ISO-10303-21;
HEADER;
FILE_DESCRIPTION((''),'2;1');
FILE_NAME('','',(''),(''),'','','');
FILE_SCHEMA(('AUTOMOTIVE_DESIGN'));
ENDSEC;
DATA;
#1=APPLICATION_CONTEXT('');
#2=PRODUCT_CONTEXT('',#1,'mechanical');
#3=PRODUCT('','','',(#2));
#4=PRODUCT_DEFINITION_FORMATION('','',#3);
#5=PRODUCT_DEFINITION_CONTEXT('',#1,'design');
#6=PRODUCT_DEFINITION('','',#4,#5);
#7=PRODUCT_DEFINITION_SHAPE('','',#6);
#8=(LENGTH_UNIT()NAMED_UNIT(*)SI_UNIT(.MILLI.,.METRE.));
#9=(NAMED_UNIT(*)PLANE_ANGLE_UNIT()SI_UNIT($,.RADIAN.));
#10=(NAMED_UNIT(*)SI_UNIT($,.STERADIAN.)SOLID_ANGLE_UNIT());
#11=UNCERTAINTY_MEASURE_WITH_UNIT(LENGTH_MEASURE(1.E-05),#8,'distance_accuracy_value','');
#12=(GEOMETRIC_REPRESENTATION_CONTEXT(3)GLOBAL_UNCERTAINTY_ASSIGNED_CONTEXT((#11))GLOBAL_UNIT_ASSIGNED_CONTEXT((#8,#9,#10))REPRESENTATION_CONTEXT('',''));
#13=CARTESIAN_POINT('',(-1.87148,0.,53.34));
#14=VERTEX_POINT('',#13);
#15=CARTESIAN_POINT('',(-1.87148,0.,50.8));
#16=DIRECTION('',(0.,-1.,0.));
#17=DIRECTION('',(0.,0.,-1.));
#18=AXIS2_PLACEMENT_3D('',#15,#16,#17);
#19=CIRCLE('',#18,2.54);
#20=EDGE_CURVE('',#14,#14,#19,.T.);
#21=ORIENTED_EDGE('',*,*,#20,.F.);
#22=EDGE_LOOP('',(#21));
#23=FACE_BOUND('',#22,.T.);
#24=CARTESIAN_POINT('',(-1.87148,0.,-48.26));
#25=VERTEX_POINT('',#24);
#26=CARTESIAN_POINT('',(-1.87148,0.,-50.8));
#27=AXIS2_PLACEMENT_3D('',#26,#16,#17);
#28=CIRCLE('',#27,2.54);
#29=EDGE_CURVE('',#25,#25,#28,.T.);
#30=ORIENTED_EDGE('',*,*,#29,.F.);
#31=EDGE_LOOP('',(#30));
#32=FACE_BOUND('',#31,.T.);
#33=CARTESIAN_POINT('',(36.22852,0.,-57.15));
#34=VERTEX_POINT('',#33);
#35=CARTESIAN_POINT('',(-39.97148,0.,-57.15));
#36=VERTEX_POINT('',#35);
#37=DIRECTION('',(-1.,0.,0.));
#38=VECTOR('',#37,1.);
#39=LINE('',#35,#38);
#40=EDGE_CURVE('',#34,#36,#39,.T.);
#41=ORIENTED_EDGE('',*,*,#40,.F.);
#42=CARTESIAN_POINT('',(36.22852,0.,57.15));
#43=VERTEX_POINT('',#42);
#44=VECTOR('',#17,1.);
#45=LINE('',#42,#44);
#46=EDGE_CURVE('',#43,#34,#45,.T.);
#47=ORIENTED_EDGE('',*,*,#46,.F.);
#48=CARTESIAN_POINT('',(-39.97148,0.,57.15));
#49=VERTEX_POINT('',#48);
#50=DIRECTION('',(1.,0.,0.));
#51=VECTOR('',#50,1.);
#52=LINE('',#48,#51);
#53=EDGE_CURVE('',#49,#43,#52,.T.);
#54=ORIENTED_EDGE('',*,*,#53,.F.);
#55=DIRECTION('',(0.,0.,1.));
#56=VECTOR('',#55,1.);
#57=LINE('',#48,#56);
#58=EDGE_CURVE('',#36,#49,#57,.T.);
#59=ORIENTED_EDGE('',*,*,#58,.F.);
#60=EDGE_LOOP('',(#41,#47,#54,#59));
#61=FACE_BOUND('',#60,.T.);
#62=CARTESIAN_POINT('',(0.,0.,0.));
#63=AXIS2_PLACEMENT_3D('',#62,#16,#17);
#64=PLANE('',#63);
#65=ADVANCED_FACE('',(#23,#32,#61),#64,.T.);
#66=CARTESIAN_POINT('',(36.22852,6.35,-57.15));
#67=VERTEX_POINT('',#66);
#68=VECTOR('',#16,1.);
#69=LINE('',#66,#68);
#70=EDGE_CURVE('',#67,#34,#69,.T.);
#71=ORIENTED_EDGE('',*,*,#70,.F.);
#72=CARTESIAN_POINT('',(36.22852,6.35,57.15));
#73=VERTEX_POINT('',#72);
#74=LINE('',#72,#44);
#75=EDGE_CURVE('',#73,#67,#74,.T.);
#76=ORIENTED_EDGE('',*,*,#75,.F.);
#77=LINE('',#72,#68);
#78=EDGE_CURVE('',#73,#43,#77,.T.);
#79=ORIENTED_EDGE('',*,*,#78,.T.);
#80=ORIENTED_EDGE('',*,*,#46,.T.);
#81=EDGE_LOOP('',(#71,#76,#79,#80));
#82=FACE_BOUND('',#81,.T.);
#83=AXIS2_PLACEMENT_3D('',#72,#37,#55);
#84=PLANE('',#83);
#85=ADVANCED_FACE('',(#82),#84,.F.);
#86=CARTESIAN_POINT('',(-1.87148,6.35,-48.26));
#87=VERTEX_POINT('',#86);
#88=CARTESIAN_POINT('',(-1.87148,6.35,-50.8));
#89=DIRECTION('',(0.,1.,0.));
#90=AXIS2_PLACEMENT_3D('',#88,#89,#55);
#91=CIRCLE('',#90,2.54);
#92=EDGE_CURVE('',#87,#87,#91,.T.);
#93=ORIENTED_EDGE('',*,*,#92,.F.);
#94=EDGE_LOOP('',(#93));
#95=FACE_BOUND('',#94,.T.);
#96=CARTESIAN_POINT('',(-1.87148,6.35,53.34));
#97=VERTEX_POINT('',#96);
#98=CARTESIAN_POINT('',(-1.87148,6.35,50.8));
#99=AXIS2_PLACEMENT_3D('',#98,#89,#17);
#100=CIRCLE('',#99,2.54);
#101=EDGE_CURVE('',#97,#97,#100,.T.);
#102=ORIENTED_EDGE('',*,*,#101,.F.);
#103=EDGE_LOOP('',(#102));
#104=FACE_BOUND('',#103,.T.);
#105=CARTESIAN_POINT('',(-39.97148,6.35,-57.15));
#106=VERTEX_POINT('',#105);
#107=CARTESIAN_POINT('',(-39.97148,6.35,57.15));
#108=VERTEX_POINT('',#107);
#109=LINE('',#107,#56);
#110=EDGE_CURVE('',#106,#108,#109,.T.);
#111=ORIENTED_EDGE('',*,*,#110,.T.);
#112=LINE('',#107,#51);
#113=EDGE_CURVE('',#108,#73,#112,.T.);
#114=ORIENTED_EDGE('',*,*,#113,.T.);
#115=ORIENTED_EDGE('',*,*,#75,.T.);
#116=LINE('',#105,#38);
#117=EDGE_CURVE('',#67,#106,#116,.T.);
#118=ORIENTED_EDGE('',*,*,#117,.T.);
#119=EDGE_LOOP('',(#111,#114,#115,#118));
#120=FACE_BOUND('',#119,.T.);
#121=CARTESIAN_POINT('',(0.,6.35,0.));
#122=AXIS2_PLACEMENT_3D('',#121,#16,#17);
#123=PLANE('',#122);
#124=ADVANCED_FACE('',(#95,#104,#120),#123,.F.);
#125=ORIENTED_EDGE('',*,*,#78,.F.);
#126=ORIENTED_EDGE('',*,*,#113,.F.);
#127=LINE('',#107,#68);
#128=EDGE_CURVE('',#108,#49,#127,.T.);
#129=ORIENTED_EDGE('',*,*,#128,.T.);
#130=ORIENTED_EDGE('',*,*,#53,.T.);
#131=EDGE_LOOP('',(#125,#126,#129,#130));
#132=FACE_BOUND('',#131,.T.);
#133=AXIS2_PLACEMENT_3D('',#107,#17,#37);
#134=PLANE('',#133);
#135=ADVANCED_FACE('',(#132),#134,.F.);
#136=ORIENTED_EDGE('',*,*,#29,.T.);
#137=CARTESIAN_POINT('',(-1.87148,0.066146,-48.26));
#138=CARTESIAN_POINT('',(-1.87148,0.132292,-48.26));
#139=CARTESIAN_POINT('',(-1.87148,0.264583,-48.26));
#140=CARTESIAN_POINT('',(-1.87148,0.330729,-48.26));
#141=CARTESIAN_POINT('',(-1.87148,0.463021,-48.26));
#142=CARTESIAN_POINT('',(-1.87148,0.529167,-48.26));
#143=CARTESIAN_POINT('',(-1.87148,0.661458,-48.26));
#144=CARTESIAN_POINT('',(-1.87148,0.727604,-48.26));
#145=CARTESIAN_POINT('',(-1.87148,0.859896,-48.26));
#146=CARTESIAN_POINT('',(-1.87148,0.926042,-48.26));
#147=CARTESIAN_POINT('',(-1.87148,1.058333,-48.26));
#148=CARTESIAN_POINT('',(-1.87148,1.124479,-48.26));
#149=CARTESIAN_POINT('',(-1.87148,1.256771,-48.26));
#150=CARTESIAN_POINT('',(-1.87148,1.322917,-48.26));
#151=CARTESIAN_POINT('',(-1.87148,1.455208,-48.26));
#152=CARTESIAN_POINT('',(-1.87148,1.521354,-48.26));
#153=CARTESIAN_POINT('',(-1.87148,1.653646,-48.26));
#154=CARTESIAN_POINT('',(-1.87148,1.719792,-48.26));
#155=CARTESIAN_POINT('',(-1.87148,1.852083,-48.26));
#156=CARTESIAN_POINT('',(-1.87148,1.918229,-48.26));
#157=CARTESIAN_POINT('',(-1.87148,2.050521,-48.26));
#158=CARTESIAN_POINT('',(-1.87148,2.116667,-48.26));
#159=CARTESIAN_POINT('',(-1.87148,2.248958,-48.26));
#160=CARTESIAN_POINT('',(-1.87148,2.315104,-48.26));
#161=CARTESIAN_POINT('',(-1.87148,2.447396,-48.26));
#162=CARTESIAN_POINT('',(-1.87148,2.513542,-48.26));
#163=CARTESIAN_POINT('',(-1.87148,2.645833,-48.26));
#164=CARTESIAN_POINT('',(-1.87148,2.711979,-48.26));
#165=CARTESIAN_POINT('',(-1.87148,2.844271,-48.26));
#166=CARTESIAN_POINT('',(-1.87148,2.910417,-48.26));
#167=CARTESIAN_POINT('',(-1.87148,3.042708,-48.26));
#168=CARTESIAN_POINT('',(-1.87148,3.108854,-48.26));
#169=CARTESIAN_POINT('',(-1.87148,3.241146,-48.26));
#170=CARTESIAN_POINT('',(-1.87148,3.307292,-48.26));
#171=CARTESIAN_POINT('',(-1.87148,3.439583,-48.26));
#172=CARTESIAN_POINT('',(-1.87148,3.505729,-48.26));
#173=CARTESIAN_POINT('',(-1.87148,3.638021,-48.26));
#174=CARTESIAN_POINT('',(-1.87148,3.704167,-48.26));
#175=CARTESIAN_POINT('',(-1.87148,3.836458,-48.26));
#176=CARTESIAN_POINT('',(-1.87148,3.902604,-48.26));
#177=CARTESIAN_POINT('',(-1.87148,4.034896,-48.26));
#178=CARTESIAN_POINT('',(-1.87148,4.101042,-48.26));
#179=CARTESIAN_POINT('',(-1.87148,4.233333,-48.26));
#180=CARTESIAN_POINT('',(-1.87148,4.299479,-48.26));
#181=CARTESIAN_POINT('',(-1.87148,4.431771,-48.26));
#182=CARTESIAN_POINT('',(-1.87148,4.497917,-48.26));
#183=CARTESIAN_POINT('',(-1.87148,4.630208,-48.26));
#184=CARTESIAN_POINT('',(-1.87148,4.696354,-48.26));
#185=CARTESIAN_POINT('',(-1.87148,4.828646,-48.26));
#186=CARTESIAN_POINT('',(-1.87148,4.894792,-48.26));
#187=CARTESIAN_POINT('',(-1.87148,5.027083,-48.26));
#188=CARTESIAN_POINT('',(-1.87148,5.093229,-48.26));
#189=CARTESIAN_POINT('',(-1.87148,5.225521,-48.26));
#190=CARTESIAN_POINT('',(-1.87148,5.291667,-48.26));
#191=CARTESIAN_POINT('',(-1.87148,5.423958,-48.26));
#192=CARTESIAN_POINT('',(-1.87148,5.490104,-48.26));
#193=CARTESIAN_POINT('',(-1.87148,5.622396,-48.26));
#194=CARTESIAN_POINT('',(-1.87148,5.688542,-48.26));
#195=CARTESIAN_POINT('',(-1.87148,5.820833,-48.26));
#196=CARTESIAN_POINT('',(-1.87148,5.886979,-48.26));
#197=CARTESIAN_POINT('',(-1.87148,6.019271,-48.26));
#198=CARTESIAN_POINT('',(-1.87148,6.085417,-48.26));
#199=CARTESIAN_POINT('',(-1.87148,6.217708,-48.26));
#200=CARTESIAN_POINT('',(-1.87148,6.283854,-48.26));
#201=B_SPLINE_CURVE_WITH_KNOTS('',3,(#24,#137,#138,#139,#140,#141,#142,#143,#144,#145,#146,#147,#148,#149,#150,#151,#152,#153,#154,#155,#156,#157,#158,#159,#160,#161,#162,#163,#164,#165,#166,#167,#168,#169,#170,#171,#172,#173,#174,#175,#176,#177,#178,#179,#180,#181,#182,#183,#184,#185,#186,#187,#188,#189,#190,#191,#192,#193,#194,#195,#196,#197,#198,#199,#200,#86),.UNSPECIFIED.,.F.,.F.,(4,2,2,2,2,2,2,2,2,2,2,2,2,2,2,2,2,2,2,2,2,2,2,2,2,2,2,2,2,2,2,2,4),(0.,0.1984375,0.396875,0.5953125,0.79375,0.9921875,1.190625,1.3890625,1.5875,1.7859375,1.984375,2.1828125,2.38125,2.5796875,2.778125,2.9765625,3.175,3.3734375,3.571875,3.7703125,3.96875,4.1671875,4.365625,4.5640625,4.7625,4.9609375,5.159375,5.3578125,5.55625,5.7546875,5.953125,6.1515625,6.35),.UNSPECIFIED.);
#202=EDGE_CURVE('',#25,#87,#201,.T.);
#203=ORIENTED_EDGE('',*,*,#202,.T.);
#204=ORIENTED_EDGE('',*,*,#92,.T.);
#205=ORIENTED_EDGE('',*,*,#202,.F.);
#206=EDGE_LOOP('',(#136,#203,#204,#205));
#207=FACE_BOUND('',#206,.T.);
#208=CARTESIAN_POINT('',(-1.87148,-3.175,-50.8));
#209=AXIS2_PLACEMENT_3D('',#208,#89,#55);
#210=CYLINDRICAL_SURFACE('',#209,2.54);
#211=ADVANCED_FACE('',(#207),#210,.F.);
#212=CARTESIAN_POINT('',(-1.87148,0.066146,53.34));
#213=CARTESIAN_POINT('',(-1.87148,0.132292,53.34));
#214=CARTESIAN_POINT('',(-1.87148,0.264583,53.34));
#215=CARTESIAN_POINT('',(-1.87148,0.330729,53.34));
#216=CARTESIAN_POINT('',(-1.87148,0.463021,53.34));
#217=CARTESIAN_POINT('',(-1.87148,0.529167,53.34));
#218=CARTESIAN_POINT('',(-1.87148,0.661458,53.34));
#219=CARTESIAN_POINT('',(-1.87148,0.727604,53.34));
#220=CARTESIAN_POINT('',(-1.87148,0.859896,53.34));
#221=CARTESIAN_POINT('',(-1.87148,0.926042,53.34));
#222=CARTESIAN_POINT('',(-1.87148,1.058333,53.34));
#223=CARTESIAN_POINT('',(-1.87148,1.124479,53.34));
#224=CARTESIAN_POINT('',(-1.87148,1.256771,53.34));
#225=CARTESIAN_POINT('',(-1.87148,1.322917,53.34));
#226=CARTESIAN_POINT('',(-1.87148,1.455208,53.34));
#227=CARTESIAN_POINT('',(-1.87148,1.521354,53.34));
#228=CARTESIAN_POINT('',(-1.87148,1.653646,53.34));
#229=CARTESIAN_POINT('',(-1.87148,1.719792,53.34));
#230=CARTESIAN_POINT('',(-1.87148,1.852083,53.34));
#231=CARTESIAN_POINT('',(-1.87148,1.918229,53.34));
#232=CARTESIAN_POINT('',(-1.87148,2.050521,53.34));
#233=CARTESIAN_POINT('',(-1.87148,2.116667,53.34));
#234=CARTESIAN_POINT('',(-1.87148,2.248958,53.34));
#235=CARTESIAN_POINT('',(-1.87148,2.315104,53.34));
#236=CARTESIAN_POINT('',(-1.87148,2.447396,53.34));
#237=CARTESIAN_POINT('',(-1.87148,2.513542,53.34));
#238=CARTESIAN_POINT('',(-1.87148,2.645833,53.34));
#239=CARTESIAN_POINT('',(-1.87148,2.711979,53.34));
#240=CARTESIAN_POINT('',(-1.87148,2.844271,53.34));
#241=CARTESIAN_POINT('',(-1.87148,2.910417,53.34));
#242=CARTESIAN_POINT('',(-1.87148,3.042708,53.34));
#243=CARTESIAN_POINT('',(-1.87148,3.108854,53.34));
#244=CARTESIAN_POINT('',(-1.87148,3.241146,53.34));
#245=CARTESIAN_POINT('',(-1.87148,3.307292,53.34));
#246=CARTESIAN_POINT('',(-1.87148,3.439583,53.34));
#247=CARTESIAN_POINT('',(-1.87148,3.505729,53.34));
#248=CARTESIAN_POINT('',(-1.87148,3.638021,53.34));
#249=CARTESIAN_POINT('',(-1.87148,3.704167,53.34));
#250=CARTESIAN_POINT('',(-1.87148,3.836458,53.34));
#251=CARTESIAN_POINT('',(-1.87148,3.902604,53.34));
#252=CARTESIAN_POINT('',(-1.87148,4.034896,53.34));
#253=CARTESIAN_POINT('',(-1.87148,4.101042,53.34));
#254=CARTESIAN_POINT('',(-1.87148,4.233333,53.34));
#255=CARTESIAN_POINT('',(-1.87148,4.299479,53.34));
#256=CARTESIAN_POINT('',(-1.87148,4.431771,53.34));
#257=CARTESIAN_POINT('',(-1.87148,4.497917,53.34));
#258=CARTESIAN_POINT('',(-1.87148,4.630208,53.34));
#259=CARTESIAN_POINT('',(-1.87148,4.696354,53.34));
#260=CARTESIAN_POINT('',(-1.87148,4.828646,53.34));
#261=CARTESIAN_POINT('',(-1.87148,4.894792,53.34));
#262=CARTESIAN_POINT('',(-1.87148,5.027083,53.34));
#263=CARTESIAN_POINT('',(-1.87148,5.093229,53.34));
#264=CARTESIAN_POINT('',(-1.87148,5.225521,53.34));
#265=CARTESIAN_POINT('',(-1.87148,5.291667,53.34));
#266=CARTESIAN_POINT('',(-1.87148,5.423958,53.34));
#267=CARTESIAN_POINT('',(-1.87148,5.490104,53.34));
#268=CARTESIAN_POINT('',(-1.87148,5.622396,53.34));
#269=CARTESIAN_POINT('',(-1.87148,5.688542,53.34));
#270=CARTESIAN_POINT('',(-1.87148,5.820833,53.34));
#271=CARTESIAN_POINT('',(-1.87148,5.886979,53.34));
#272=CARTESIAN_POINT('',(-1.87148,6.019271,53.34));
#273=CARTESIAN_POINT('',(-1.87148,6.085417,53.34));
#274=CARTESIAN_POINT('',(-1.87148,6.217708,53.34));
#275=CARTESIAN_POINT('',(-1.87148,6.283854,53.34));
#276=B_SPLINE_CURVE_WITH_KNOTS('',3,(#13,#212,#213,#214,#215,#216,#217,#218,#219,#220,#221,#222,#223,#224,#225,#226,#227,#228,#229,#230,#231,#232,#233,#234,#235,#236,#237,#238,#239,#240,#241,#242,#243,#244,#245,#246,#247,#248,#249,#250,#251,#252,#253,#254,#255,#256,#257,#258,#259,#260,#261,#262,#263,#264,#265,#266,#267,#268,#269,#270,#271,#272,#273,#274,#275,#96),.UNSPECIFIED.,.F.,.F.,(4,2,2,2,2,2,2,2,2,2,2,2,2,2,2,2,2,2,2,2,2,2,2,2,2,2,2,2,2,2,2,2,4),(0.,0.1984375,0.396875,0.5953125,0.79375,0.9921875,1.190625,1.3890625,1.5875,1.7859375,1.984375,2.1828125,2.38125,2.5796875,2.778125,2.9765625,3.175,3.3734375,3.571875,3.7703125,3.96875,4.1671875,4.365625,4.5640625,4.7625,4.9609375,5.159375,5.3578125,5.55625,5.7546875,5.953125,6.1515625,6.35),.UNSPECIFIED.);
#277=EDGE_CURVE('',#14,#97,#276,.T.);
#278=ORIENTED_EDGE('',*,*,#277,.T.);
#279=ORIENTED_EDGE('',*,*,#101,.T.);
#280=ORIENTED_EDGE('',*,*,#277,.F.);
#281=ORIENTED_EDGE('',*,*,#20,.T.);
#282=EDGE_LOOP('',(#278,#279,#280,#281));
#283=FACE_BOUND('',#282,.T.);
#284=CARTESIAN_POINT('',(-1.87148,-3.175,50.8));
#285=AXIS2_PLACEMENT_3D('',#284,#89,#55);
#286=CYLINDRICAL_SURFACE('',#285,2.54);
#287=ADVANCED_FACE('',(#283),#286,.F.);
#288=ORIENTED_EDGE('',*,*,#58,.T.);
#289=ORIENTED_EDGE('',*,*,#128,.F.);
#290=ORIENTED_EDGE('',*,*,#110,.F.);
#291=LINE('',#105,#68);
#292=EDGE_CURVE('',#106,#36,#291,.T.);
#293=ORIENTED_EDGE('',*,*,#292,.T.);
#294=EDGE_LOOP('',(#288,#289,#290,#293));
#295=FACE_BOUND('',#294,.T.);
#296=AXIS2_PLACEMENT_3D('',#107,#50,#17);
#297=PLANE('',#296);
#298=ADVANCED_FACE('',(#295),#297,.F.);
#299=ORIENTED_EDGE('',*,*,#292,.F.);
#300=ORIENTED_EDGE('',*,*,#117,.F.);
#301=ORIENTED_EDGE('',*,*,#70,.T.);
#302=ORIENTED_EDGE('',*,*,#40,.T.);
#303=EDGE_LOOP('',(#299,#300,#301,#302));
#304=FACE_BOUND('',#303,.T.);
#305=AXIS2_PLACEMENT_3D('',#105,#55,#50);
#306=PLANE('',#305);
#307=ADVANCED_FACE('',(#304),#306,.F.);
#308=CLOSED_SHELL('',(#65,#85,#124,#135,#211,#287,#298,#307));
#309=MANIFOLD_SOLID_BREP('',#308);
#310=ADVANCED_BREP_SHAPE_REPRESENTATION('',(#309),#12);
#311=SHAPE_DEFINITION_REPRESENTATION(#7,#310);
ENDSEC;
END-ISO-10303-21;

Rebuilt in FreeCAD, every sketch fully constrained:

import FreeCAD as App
import Part
import Sketcher
from FreeCAD import Vector
Q = App.Units.Quantity

doc = App.newDocument("Part")
params = doc.addObject("Spreadsheet::Sheet", "Params")
for row, (alias, value) in enumerate([
    ("sketch1_width", "3 in"),
    ("sketch1_height", "4.5 in"),
    ("pad1_length", "0.25 in"),
    ("sketch2_diameter", "0.2 in"),
    ("pocket1_length", "0.375 in"),
], start=1):
    params.set(f"A{row}", alias)
    params.set(f"B{row}", "=" + value)
    params.setAlias(f"B{row}", alias)

body = doc.addObject("PartDesign::Body", "Body")

# Sketch on XZ plane
sketch1 = doc.addObject("Sketcher::SketchObject", "Sketch")
body.addObject(sketch1)
sketch1.AttachmentSupport = (doc.XZ_Plane, [""])
sketch1.MapMode = "FlatFace"
sketch1.addGeometry([
    Part.LineSegment(Vector(-40, -57, 0), Vector(-40, 57, 0)),
    Part.LineSegment(Vector(-40, 57, 0), Vector(36, 57, 0)),
    Part.LineSegment(Vector(36, 57, 0), Vector(36, -57, 0)),
    Part.LineSegment(Vector(36, -57, 0), Vector(-40, -57, 0)),
], False)
sketch1.addConstraint([
    Sketcher.Constraint("Coincident", 0, 2, 1, 1),
    Sketcher.Constraint("Coincident", 1, 2, 2, 1),
    Sketcher.Constraint("Coincident", 2, 2, 3, 1),
    Sketcher.Constraint("Coincident", 3, 2, 0, 1),
    Sketcher.Constraint("Vertical", 0),
    Sketcher.Constraint("Horizontal", 1),
    Sketcher.Constraint("Vertical", 2),
    Sketcher.Constraint("Horizontal", 3),
    Sketcher.Constraint("DistanceX", 1, 1, 1, 2, Q("3 in")),
    Sketcher.Constraint("DistanceY", 0, 1, 0, 2, Q("4.5 in")),
    Sketcher.Constraint("DistanceY", -1, 1, 0, 2, Q("2.25 in")),
    Sketcher.Constraint("DistanceX", 0, 2, -1, 1, Q("39.97148 mm")),
])
sketch1.setExpression("Constraints[8]", "Params.sketch1_width")
sketch1.setExpression("Constraints[9]", "Params.sketch1_height")
pad1 = doc.addObject("PartDesign::Pad", "Pad")
body.addObject(pad1)
pad1.Profile = sketch1
pad1.setExpression("Length", "Params.pad1_length")
pad1.Reversed = True

# Sketch on XZ plane
sketch2 = doc.addObject("Sketcher::SketchObject", "Sketch001")
body.addObject(sketch2)
sketch2.AttachmentSupport = (doc.XZ_Plane, [""])
sketch2.MapMode = "FlatFace"
sketch2.AttachmentOffset = App.Placement(Vector(0, 0, -0.25 * 25.4), App.Rotation())
sketch2.addGeometry([
    Part.Circle(Vector(-1.9, -50.8, 0), Vector(0, 0, 1), 2.5),
    Part.Circle(Vector(-1.9, 50.8, 0), Vector(0, 0, 1), 2.5),
], False)
sketch2.addConstraint([
    Sketcher.Constraint("Equal", 0, 1),
    Sketcher.Constraint("Symmetric", 0, 3, 1, 3, -1),
    Sketcher.Constraint("Diameter", 0, Q("0.2 in")),
    Sketcher.Constraint("DistanceY", 0, 3, -1, 1, Q("2 in")),
    Sketcher.Constraint("DistanceX", 0, 3, -1, 1, Q("1.87148 mm")),
])
sketch2.setExpression("Constraints[2]", "Params.sketch2_diameter")
pocket1 = doc.addObject("PartDesign::Pocket", "Pocket")
body.addObject(pocket1)
pocket1.Profile = sketch2
pocket1.setExpression("Length", "Params.pocket1_length")
pocket1.Reversed = True

doc.recompute()
